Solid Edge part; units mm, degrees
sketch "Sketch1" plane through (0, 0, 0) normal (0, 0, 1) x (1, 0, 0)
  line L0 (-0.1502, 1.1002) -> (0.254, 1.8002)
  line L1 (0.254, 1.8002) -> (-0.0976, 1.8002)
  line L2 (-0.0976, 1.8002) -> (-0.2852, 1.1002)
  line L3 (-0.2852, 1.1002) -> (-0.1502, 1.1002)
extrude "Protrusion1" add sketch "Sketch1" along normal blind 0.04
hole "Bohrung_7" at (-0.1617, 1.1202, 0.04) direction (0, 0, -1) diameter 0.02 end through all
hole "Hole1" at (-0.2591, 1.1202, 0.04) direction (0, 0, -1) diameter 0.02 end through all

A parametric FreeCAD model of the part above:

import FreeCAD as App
import Part
import Sketcher

doc = App.newDocument("Part")
params = doc.addObject("Spreadsheet::Sheet", "Params")
for row, (alias, value) in enumerate([
    ("pad1_length", "0.04 mm"),
    ("sketch2_diameter", "0.02 mm"),
    ("hole_diameter", "0.02 mm"),
    ("sketch3_diameter", "0.02 mm"),
    ("hole2_diameter", "0.02 mm"),
], start=1):
    params.set(f"A{row}", alias)
    params.set(f"B{row}", "=" + value)
    params.setAlias(f"B{row}", alias)

body = doc.addObject("PartDesign::Body", "Body")

sketch1 = body.newObject("Sketcher::SketchObject", "Sketch")
sketch1.AttachmentSupport = (doc.getObject("XY_Plane"), [""])
sketch1.MapMode = "FlatFace"
sketch1.addGeometry([
    Part.LineSegment(App.Vector(-0.2852, 1.1002, 0), App.Vector(-0.1502, 1.1002, 0)),
    Part.LineSegment(App.Vector(-0.1502, 1.1002, 0), App.Vector(0.254, 1.8002, 0)),
    Part.LineSegment(App.Vector(0.254, 1.8002, 0), App.Vector(-0.0976, 1.8002, 0)),
    Part.LineSegment(App.Vector(-0.0976, 1.8002, 0), App.Vector(-0.2852, 1.1002, 0)),
], False)
sketch1.addConstraint([
    Sketcher.Constraint("Coincident", 0, 2, 1, 1),
    Sketcher.Constraint("Coincident", 1, 2, 2, 1),
    Sketcher.Constraint("Coincident", 2, 2, 3, 1),
    Sketcher.Constraint("Coincident", 3, 2, 0, 1),
    Sketcher.Constraint("Horizontal", 0),
    Sketcher.Constraint("Horizontal", 2),
    Sketcher.Constraint("DistanceY", 0, 2, 1, 2, 0.7),
    Sketcher.Constraint("DistanceX", 0, 1, 0, 2, 0.135),
    Sketcher.Constraint("DistanceX", 2, 2, 2, 1, 0.3516),
    Sketcher.Constraint("DistanceX", -1, 1, 1, 2, 0.254),
    Sketcher.Constraint("Distance", 1, 0.8083),
    Sketcher.Constraint("DistanceY", -1, 1, 0, 2, 1.1002),
])
pad1 = body.newObject("PartDesign::Pad", "Pad")
pad1.Profile = sketch1
pad1.setExpression("Length", "Params.pad1_length")

sketch2 = body.newObject("Sketcher::SketchObject", "Sketch001")
sketch2.AttachmentSupport = (doc.getObject("XY_Plane"), [""])
sketch2.MapMode = "FlatFace"
sketch2.AttachmentOffset = App.Placement(App.Vector(0, 0, 0.04), App.Rotation())
sketch2.addGeometry(Part.Circle(App.Vector(-0.1617, 1.1202, 0), App.Vector(0, 0, 1), 0.01), False)
sketch2.addConstraint([
    Sketcher.Constraint("Diameter", 0, 0.02),
    Sketcher.Constraint("DistanceX", 0, 3, -1, 1, 0.1617),
    Sketcher.Constraint("DistanceY", -1, 1, 0, 3, 1.1202),
])
sketch2.setExpression("Constraints[0]", "Params.sketch2_diameter")
doc.recompute()
hole = body.newObject("PartDesign::Hole", "Hole")
hole.Profile = sketch2
hole.ThreadType = "None"
hole.setExpression("Diameter", "Params.hole_diameter")
hole.DepthType = "ThroughAll"

sketch3 = body.newObject("Sketcher::SketchObject", "Sketch002")
sketch3.AttachmentSupport = (doc.getObject("XY_Plane"), [""])
sketch3.MapMode = "FlatFace"
sketch3.AttachmentOffset = App.Placement(App.Vector(0, 0, 0.04), App.Rotation())
sketch3.addGeometry(Part.Circle(App.Vector(-0.2591, 1.1202, 0), App.Vector(0, 0, 1), 0.01), False)
sketch3.addConstraint([
    Sketcher.Constraint("Diameter", 0, 0.02),
    Sketcher.Constraint("DistanceX", 0, 3, -1, 1, 0.259),
    Sketcher.Constraint("DistanceY", -1, 1, 0, 3, 1.1202),
])
sketch3.setExpression("Constraints[0]", "Params.sketch3_diameter")
doc.recompute()
hole2 = body.newObject("PartDesign::Hole", "Hole001")
hole2.Profile = sketch3
hole2.ThreadType = "None"
hole2.setExpression("Diameter", "Params.hole2_diameter")
hole2.DepthType = "ThroughAll"

doc.recompute()
